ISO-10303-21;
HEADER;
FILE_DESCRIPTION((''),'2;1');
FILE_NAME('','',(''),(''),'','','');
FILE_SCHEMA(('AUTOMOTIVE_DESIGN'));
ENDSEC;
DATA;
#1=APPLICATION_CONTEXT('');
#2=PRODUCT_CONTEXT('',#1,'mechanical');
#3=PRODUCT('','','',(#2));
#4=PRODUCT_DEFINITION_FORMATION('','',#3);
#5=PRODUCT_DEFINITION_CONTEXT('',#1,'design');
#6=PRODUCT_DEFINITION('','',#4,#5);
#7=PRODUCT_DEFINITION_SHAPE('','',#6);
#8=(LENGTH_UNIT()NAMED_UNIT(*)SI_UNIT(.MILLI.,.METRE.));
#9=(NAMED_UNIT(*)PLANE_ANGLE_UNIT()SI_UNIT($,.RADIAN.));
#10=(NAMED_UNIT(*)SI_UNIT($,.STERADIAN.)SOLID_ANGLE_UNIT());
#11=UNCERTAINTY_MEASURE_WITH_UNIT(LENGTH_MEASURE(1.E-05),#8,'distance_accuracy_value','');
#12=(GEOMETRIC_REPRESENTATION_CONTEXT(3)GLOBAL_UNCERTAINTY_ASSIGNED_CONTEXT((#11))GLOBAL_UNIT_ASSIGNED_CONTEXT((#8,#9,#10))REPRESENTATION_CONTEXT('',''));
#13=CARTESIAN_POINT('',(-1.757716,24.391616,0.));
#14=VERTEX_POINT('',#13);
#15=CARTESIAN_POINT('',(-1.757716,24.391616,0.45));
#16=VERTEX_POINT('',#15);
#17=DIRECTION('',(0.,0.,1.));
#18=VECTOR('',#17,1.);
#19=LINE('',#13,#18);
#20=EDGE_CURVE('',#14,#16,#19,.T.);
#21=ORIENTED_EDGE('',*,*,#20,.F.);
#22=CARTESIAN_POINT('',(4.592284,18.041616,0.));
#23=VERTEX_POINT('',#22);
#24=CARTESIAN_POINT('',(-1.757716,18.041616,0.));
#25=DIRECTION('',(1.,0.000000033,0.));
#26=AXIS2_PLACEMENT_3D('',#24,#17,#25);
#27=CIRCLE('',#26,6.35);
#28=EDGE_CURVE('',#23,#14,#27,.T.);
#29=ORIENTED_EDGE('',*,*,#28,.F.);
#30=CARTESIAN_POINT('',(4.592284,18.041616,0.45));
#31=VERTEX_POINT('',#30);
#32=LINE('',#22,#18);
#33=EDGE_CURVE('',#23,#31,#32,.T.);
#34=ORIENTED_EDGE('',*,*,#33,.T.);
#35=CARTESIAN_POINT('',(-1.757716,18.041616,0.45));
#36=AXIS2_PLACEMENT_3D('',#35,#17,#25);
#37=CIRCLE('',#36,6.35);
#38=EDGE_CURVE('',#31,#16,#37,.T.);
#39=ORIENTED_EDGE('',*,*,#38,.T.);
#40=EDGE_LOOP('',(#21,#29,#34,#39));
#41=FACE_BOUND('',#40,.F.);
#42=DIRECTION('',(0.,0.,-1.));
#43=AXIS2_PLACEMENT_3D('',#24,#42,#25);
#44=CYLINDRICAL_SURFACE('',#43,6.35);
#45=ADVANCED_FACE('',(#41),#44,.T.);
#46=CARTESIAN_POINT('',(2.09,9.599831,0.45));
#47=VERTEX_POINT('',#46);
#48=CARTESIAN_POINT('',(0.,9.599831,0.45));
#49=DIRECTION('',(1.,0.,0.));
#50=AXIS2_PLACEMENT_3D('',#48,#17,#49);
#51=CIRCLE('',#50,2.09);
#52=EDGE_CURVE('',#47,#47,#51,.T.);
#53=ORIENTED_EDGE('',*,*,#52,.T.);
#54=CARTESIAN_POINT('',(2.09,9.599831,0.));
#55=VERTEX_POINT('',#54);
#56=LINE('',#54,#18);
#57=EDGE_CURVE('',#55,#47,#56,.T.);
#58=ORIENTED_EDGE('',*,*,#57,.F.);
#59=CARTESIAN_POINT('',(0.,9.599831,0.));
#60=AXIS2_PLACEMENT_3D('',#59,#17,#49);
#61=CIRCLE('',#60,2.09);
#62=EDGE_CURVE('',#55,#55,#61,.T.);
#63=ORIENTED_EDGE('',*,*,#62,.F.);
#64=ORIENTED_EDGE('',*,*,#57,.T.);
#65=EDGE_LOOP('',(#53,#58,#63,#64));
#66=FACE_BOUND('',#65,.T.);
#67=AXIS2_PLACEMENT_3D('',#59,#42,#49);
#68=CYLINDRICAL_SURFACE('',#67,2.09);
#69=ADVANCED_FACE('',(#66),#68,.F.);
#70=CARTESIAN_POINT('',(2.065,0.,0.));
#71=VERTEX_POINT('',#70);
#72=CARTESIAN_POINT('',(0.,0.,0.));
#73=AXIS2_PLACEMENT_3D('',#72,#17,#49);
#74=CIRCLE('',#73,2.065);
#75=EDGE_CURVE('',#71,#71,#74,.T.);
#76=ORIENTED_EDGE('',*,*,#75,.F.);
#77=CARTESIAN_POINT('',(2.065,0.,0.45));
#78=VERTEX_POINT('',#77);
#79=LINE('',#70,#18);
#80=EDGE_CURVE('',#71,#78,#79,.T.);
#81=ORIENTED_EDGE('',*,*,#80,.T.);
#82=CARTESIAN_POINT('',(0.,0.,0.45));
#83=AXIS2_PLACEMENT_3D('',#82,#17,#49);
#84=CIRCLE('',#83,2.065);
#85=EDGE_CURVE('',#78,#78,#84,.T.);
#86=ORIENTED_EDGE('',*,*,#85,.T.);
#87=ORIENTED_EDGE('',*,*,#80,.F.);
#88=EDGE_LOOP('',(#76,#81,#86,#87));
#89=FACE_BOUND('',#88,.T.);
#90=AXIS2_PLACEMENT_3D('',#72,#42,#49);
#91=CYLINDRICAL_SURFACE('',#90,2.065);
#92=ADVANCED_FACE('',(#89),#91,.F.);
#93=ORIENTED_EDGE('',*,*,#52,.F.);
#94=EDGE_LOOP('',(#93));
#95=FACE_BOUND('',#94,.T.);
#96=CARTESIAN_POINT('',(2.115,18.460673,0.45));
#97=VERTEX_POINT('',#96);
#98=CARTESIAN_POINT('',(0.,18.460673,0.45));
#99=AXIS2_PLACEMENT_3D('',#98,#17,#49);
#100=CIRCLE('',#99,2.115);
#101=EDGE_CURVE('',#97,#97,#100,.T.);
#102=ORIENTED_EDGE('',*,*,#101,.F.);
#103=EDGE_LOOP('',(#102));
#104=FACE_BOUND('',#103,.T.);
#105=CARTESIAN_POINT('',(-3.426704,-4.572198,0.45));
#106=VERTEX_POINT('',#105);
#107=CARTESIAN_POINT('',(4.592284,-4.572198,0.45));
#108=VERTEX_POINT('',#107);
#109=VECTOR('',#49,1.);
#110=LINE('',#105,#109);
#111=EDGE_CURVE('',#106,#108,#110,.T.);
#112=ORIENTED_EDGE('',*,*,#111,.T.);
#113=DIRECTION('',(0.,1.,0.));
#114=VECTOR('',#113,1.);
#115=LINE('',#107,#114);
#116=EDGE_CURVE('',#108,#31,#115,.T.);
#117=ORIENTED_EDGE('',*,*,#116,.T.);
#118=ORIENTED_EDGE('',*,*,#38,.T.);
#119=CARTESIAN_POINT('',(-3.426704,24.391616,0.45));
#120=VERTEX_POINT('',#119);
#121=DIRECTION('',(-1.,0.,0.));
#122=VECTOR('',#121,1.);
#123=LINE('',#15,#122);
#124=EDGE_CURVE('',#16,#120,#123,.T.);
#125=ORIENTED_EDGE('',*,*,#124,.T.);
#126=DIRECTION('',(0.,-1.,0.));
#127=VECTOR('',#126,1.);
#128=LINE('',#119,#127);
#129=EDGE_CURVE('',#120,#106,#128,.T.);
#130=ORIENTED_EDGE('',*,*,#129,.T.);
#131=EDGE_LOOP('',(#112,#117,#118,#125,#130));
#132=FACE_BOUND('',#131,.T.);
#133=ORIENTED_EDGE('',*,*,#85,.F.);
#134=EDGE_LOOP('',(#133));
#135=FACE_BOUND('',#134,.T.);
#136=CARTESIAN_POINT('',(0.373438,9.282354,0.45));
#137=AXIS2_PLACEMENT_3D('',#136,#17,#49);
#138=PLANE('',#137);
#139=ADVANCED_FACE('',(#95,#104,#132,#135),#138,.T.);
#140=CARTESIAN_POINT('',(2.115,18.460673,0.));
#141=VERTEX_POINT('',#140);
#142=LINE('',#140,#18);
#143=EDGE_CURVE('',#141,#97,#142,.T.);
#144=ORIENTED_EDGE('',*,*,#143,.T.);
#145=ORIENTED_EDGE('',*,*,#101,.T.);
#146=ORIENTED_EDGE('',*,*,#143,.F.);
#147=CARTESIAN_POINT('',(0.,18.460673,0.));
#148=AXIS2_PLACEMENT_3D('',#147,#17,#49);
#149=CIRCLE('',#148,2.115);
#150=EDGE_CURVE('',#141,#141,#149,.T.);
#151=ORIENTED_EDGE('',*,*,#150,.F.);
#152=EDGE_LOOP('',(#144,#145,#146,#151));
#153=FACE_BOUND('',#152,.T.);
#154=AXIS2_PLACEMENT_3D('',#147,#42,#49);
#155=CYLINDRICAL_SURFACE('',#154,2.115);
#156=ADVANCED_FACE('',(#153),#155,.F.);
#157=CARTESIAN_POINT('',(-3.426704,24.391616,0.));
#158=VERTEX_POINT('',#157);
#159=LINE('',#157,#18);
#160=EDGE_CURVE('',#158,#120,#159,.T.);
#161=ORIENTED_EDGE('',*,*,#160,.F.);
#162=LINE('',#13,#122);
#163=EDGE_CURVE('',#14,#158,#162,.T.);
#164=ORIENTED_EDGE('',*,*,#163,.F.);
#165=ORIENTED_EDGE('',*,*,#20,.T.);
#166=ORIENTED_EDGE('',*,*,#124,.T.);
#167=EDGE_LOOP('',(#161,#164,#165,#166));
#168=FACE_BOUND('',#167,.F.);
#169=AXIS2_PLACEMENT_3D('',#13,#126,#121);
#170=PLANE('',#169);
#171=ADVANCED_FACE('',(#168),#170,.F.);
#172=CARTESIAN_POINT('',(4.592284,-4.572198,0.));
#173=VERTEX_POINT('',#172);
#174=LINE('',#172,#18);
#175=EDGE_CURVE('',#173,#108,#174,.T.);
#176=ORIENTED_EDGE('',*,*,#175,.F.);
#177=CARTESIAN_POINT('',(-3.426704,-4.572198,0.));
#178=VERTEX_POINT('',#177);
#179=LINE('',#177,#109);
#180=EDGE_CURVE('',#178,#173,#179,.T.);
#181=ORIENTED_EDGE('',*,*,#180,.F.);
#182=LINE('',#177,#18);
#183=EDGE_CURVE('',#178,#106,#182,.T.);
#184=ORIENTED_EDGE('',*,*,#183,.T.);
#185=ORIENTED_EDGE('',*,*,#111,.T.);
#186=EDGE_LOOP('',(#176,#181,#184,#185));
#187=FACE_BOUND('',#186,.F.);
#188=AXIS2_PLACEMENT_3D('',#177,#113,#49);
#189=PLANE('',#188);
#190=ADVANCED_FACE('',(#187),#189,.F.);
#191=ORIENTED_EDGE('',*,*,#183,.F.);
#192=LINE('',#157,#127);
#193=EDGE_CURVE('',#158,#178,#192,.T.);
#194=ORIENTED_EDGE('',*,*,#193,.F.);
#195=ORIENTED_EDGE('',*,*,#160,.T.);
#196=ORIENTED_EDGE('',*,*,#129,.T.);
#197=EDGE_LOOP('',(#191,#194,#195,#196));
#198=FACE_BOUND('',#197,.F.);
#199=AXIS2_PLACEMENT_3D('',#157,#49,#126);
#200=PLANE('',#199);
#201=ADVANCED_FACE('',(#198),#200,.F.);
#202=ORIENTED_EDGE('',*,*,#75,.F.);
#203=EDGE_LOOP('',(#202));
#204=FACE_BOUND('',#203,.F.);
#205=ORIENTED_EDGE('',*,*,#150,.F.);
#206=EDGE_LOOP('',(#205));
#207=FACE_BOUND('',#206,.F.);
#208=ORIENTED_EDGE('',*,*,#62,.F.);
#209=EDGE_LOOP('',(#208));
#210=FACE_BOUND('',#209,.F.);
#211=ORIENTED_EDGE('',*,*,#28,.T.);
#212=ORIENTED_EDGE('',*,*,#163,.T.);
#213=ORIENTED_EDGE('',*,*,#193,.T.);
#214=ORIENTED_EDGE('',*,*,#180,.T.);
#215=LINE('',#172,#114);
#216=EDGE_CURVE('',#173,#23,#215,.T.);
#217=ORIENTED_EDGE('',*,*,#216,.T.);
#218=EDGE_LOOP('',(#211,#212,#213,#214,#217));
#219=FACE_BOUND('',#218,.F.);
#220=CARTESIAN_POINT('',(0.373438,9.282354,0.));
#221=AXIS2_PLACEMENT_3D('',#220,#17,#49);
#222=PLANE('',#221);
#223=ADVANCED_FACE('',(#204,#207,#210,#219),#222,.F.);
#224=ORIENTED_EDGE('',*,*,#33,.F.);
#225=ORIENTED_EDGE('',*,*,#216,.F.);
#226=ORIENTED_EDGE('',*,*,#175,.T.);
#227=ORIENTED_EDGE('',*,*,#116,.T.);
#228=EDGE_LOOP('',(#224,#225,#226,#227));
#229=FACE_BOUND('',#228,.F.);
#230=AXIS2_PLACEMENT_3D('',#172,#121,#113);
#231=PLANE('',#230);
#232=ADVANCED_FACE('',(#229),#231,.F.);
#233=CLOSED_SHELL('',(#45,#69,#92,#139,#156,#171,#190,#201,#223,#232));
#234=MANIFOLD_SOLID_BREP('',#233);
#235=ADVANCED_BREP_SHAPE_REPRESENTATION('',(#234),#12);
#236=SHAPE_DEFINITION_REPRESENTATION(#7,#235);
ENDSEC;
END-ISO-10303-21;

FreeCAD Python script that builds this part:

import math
import FreeCAD as App
import Part
import Sketcher

V = App.Vector
Q = App.Units.Quantity

doc = App.newDocument("Part")
body = doc.addObject("PartDesign::Body", "Body")

# Sketch on XY plane
sketch1 = doc.addObject("Sketcher::SketchObject", "Sketch")
body.addObject(sketch1)
sketch1.AttachmentSupport = (doc.XY_Plane, [""])
sketch1.MapMode = "FlatFace"
sketch1.addGeometry(Part.LineSegment(V(-3.426704, -4.572198, 0), V(4.592284, -4.572198, 0)), False)
sketch1.addGeometry(Part.LineSegment(V(4.592284, -4.572198, 0), V(4.592284, 18.041616, 0)), False)
sketch1.addGeometry(Part.ArcOfCircle(Part.Circle(V(-1.757716, 18.041616, 0), V(0, 0, 1), 6.35), math.radians(0.000002), math.radians(89.999998)), False)
sketch1.addGeometry(Part.LineSegment(V(-1.757716, 24.391616, 0), V(-3.426704, 24.391616, 0)), False)
sketch1.addGeometry(Part.LineSegment(V(-3.426704, 24.391616, 0), V(-3.426704, -4.572198, 0)), False)
sketch1.addGeometry(Part.Circle(V(0, 0, 0), V(0, 0, 1), 2.065), False)
sketch1.addGeometry(Part.Circle(V(0, 9.599831, 0), V(0, 0, 1), 2.09), False)
sketch1.addGeometry(Part.Circle(V(0, 18.460673, 0), V(0, 0, 1), 2.115), False)
sketch1.addConstraint(Sketcher.Constraint("Coincident", 0, 2, 1, 1))
sketch1.addConstraint(Sketcher.Constraint("Tangent", 1, 2, 2, 1))
sketch1.addConstraint(Sketcher.Constraint("Tangent", 2, 2, 3, 1))
sketch1.addConstraint(Sketcher.Constraint("Coincident", 3, 2, 4, 1))
sketch1.addConstraint(Sketcher.Constraint("Coincident", 4, 2, 0, 1))
sketch1.addConstraint(Sketcher.Constraint("Horizontal", 0))
sketch1.addConstraint(Sketcher.Constraint("Vertical", 1))
sketch1.addConstraint(Sketcher.Constraint("Horizontal", 3))
sketch1.addConstraint(Sketcher.Constraint("Vertical", 4))
sketch1.addConstraint(Sketcher.Constraint("Coincident", 5, 3, -1, 1))
sketch1.addConstraint(Sketcher.Constraint("PointOnObject", 6, 3, -2))
sketch1.addConstraint(Sketcher.Constraint("PointOnObject", 7, 3, -2))
sketch1.addConstraint(Sketcher.Constraint("Radius", 2, Q("0.25 in")))
sketch1.addConstraint(Sketcher.Constraint("Diameter", 5, Q("4.13 mm")))
sketch1.addConstraint(Sketcher.Constraint("Diameter", 6, Q("4.18 mm")))
sketch1.addConstraint(Sketcher.Constraint("Diameter", 7, Q("4.23 mm")))
sketch1.addConstraint(Sketcher.Constraint("DistanceY", -1, 1, 2, 3, Q("0.7102998 in")))
sketch1.addConstraint(Sketcher.Constraint("DistanceY", 0, 2, -1, 1, Q("4.572198 mm")))
sketch1.addConstraint(Sketcher.Constraint("DistanceX", 0, 1, 0, 2, Q("8.018988 mm")))
sketch1.addConstraint(Sketcher.Constraint("DistanceY", -1, 1, 6, 3, Q("9.599831 mm")))
sketch1.addConstraint(Sketcher.Constraint("DistanceY", 0, 2, 7, 3, Q("23.032871 mm")))
sketch1.addConstraint(Sketcher.Constraint("DistanceX", 2, 3, -1, 1, Q("1.757716 mm")))
pad1 = doc.addObject("PartDesign::Pad", "Pad")
body.addObject(pad1)
pad1.Profile = sketch1
pad1.Length = 0.45

doc.recompute()
